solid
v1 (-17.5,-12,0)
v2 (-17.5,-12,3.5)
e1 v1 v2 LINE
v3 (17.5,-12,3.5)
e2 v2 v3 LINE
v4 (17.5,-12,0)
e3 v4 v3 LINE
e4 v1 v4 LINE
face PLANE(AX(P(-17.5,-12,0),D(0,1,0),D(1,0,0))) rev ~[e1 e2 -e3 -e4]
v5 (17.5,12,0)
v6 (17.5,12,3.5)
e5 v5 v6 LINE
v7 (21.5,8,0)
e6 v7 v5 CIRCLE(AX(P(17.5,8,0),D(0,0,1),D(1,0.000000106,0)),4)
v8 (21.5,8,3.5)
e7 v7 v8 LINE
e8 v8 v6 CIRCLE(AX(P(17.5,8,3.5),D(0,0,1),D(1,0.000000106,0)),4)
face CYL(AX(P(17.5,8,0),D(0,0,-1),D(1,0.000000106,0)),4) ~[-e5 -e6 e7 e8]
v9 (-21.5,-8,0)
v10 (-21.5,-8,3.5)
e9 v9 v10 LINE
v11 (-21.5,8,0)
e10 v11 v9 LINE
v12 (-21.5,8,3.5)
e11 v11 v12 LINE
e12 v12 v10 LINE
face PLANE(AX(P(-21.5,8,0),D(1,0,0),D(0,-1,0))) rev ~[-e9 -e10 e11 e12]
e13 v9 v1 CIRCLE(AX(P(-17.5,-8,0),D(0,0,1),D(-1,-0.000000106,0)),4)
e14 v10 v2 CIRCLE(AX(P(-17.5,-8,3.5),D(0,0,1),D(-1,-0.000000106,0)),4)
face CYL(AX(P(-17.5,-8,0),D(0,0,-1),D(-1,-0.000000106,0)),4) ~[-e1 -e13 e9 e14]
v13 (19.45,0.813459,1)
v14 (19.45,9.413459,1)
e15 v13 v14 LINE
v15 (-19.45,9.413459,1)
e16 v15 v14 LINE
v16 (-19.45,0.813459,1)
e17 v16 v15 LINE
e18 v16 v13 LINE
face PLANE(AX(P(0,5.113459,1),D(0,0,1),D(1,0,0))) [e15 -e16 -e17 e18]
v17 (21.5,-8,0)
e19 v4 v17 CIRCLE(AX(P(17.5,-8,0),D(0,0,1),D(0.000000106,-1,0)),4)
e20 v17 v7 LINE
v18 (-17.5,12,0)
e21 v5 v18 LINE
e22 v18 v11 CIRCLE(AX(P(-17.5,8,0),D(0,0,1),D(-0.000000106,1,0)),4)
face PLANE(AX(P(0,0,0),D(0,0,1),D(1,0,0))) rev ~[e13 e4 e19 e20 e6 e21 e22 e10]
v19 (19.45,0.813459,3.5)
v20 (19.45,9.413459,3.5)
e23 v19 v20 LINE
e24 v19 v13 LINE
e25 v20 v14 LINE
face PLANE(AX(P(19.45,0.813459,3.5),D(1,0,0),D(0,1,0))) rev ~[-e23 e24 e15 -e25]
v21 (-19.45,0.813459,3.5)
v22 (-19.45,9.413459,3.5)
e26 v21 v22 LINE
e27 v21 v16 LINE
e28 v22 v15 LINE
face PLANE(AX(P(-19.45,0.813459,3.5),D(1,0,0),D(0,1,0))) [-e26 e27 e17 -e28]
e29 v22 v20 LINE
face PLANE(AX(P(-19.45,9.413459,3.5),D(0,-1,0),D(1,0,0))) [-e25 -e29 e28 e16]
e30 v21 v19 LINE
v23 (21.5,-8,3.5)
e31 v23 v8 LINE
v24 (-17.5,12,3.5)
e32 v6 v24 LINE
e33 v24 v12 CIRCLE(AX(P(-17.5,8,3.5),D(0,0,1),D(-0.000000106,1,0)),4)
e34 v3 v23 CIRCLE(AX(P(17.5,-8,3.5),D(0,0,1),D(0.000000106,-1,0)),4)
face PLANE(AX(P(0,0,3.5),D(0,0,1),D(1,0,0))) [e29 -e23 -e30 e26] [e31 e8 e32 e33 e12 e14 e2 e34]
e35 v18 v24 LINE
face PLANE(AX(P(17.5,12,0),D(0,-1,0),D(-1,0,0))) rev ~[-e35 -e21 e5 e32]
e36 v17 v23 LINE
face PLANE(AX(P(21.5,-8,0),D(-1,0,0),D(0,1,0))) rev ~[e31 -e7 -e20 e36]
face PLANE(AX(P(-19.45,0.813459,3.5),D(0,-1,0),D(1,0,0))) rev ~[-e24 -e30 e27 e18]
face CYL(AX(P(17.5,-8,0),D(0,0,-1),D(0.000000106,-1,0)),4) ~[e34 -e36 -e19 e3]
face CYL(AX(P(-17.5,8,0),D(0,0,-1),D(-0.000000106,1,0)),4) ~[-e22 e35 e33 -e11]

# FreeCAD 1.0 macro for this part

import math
import FreeCAD as App
import Part
import Sketcher

V = App.Vector
Q = App.Units.Quantity


def add_polygon(sketch, points):
    """Adds a closed chain of lines whose ends are joined by coincident constraints."""
    first, n = sketch.GeometryCount, len(points)
    for a, b in zip(points, points[1:] + points[:1]):
        sketch.addGeometry(Part.LineSegment(App.Vector(*a, 0), App.Vector(*b, 0)), False)
    for i in range(n):
        sketch.addConstraint(Sketcher.Constraint("Coincident", first + i, 2, first + (i + 1) % n, 1))

doc = App.newDocument("Part")
body = doc.addObject("PartDesign::Body", "Body")

# Sketch on XY plane
sketch1 = doc.addObject("Sketcher::SketchObject", "Sketch")
body.addObject(sketch1)
sketch1.AttachmentSupport = (doc.XY_Plane, [""])
sketch1.MapMode = "FlatFace"
sketch1.addGeometry([
    Part.LineSegment(V(-17.5, -12, 0), V(17.5, -12, 0)),  # 0
    Part.ArcOfCircle(Part.Circle(V(17.5, -8, 0), V(0, 0, 1), 4), math.radians(-90), math.radians(0)),  # 1
    Part.LineSegment(V(21.5, -8, 0), V(21.5, 8, 0)),  # 2
    Part.ArcOfCircle(Part.Circle(V(17.5, 8, 0), V(0, 0, 1), 4), math.radians(0), math.radians(90)),  # 3
    Part.LineSegment(V(17.5, 12, 0), V(-17.5, 12, 0)),  # 4
    Part.ArcOfCircle(Part.Circle(V(-17.5, 8, 0), V(0, 0, 1), 4), math.radians(90), math.radians(180)),  # 5
    Part.LineSegment(V(-21.5, 8, 0), V(-21.5, -8, 0)),  # 6
    Part.ArcOfCircle(Part.Circle(V(-17.5, -8, 0), V(0, 0, 1), 4), math.radians(-180), math.radians(-90)),  # 7
], False)
sketch1.addConstraint([
    Sketcher.Constraint("Tangent", 0, 2, 1, 1),
    Sketcher.Constraint("Tangent", 1, 2, 2, 1),
    Sketcher.Constraint("Tangent", 2, 2, 3, 1),
    Sketcher.Constraint("Tangent", 3, 2, 4, 1),
    Sketcher.Constraint("Tangent", 4, 2, 5, 1),
    Sketcher.Constraint("Tangent", 5, 2, 6, 1),
    Sketcher.Constraint("Tangent", 6, 2, 7, 1),
    Sketcher.Constraint("Tangent", 7, 2, 0, 1),
    Sketcher.Constraint("Horizontal", 0),
    Sketcher.Constraint("Vertical", 2),
    Sketcher.Constraint("Horizontal", 4),
    Sketcher.Constraint("Vertical", 6),
    Sketcher.Constraint("Equal", 1, 3),
    Sketcher.Constraint("Equal", 3, 5),
    Sketcher.Constraint("Equal", 5, 7),
    Sketcher.Constraint("Symmetric", 1, 3, 5, 3, -1, 1),
    Sketcher.Constraint("Radius", 1, Q("4 mm")),
    Sketcher.Constraint("DistanceX", 0, 1, 0, 2, Q("35 mm")),
    Sketcher.Constraint("DistanceY", 2, 1, 2, 2, Q("16 mm")),
])
pad1 = doc.addObject("PartDesign::Pad", "Pad")
body.addObject(pad1)
pad1.Profile = sketch1
pad1.Length = 3.5

# Sketch on XY plane
sketch2 = doc.addObject("Sketcher::SketchObject", "Sketch001")
body.addObject(sketch2)
sketch2.AttachmentSupport = (doc.XY_Plane, [""])
sketch2.MapMode = "FlatFace"
sketch2.AttachmentOffset = App.Placement(V(0, 0, 3.5), App.Rotation())
add_polygon(sketch2, [(-19, 9), (-19, 1), (19, 1), (19, 9)])  # lines 0-3
sketch2.addConstraint([
    Sketcher.Constraint("Vertical", 0),
    Sketcher.Constraint("Horizontal", 1),
    Sketcher.Constraint("Vertical", 2),
    Sketcher.Constraint("Horizontal", 3),
    Sketcher.Constraint("DistanceX", 1, 1, 1, 2, Q("38.9 mm")),
    Sketcher.Constraint("DistanceY", 0, 2, 0, 1, Q("8.6 mm")),
    Sketcher.Constraint("DistanceX", 0, 2, -1, 1, Q("19.45 mm")),
    Sketcher.Constraint("DistanceY", -1, 1, 0, 2, Q("0.813459 mm")),
])
pocket1 = doc.addObject("PartDesign::Pocket", "Pocket")
body.addObject(pocket1)
pocket1.Profile = sketch2
pocket1.Length = 2.5

doc.recompute()
